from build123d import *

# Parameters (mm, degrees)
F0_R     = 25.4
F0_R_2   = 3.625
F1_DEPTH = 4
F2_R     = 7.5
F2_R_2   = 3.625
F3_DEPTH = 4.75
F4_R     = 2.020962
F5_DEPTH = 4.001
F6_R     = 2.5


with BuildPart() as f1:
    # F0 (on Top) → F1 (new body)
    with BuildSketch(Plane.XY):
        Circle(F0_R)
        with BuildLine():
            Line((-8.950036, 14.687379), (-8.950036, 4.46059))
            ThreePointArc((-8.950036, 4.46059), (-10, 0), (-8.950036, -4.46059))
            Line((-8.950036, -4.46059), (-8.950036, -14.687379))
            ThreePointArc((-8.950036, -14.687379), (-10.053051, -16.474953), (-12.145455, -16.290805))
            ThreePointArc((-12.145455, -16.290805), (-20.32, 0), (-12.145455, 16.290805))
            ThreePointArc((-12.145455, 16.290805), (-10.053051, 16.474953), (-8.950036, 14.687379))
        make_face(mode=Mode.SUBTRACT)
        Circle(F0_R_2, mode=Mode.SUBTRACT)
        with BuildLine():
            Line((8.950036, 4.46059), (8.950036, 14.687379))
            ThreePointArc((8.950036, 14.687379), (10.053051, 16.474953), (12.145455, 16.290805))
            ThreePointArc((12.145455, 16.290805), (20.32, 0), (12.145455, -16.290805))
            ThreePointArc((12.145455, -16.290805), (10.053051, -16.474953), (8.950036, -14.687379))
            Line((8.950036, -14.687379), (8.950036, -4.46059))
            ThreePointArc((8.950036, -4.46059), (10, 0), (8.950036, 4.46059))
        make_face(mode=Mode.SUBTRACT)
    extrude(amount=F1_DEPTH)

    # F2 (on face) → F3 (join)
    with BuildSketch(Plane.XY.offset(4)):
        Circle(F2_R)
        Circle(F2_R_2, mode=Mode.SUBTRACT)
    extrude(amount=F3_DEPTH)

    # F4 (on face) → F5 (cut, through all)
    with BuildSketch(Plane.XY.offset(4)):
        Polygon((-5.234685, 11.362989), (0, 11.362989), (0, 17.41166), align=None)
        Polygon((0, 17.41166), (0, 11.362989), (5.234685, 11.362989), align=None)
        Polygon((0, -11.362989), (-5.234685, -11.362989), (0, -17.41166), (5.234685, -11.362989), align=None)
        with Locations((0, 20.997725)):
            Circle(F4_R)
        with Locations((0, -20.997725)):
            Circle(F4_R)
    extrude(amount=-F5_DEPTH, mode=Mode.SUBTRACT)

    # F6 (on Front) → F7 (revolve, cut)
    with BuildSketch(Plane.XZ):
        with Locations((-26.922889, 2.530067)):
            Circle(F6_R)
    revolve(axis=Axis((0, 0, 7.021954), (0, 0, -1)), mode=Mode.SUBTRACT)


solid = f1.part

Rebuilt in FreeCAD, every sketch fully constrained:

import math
import FreeCAD as App
import Part
import Sketcher
Q = App.Units.Quantity


def add_polygon(sketch, points):
    """Adds a closed chain of lines whose ends are joined by coincident constraints."""
    first, n = sketch.GeometryCount, len(points)
    for a, b in zip(points, points[1:] + points[:1]):
        sketch.addGeometry(Part.LineSegment(App.Vector(*a, 0), App.Vector(*b, 0)), False)
    for i in range(n):
        sketch.addConstraint(Sketcher.Constraint("Coincident", first + i, 2, first + (i + 1) % n, 1))

doc = App.newDocument("Part")
body = doc.addObject("PartDesign::Body", "Body")

# Sketch on XY plane
sketch1 = body.newObject("Sketcher::SketchObject", "Sketch")
sketch1.AttachmentSupport = (doc.getObject("XY_Plane"), [""])
sketch1.MapMode = "FlatFace"
sketch1.addGeometry(Part.Circle(App.Vector(0, 0, 0), App.Vector(0, 0, 1), 25.4), False)
sketch1.addGeometry(Part.Circle(App.Vector(0, 0, 0), App.Vector(0, 0, 1), 3.625), False)
sketch1.addGeometry(Part.ArcOfCircle(Part.Circle(App.Vector(-10.950036, 14.68738, 0), App.Vector(0, 0, 1), 2), math.radians(-0.000028), math.radians(126.706042)), False)
sketch1.addGeometry(Part.LineSegment(App.Vector(-8.950036, 14.687379, 0), App.Vector(-8.950036, 4.46059, 0)), False)
sketch1.addGeometry(Part.ArcOfCircle(Part.Circle(App.Vector(0.000004, 0, 0), App.Vector(0, 0, 1), 10.000004), math.radians(153.508897), math.radians(206.491103)), False)
sketch1.addGeometry(Part.LineSegment(App.Vector(-8.950036, -4.46059, 0), App.Vector(-8.950036, -14.687379, 0)), False)
sketch1.addGeometry(Part.ArcOfCircle(Part.Circle(App.Vector(-10.950036, -14.68738, 0), App.Vector(0, 0, 1), 2), math.radians(-126.706042), math.radians(0.000028)), False)
sketch1.addGeometry(Part.ArcOfCircle(Part.Circle(App.Vector(0, 0, 0), App.Vector(0, 0, 1), 20.32), math.radians(126.706021), math.radians(233.293979)), False)
sketch1.addGeometry(Part.ArcOfCircle(Part.Circle(App.Vector(-0.000004, 0, 0), App.Vector(0, 0, 1), 10.000004), math.radians(-26.491103), math.radians(26.491103)), False)
sketch1.addGeometry(Part.LineSegment(App.Vector(8.950036, 4.46059, 0), App.Vector(8.950036, 14.687379, 0)), False)
sketch1.addGeometry(Part.ArcOfCircle(Part.Circle(App.Vector(10.950036, 14.68738, 0), App.Vector(0, 0, 1), 2), math.radians(53.293958), math.radians(180.000028)), False)
sketch1.addGeometry(Part.ArcOfCircle(Part.Circle(App.Vector(0, 0, 0), App.Vector(0, 0, 1), 20.32), math.radians(-53.293979), math.radians(53.293979)), False)
sketch1.addGeometry(Part.ArcOfCircle(Part.Circle(App.Vector(10.950036, -14.68738, 0), App.Vector(0, 0, 1), 2), math.radians(179.999972), math.radians(306.706042)), False)
sketch1.addGeometry(Part.LineSegment(App.Vector(8.950036, -14.687379, 0), App.Vector(8.950036, -4.46059, 0)), False)
sketch1.addConstraint(Sketcher.Constraint("Tangent", 2, 1, 3, 1))
sketch1.addConstraint(Sketcher.Constraint("Coincident", 3, 2, 4, 1))
sketch1.addConstraint(Sketcher.Constraint("Coincident", 4, 2, 5, 1))
sketch1.addConstraint(Sketcher.Constraint("Tangent", 5, 2, 6, 2))
sketch1.addConstraint(Sketcher.Constraint("Tangent", 6, 1, 7, 2))
sketch1.addConstraint(Sketcher.Constraint("Tangent", 7, 1, 2, 2))
sketch1.addConstraint(Sketcher.Constraint("Coincident", 8, 2, 9, 1))
sketch1.addConstraint(Sketcher.Constraint("Tangent", 9, 2, 10, 2))
sketch1.addConstraint(Sketcher.Constraint("Tangent", 10, 1, 11, 2))
sketch1.addConstraint(Sketcher.Constraint("Tangent", 11, 1, 12, 2))
sketch1.addConstraint(Sketcher.Constraint("Tangent", 12, 1, 13, 1))
sketch1.addConstraint(Sketcher.Constraint("Coincident", 13, 2, 8, 1))
sketch1.addConstraint(Sketcher.Constraint("Vertical", 3))
sketch1.addConstraint(Sketcher.Constraint("Vertical", 5))
sketch1.addConstraint(Sketcher.Constraint("Vertical", 9))
sketch1.addConstraint(Sketcher.Constraint("Vertical", 13))
sketch1.addConstraint(Sketcher.Constraint("Coincident", 0, 3, -1, 1))
sketch1.addConstraint(Sketcher.Constraint("Coincident", 1, 3, -1, 1))
sketch1.addConstraint(Sketcher.Constraint("Coincident", 4, 3, -1, 1))
sketch1.addConstraint(Sketcher.Constraint("Coincident", 7, 3, -1, 1))
sketch1.addConstraint(Sketcher.Constraint("Coincident", 8, 3, -1, 1))
sketch1.addConstraint(Sketcher.Constraint("Coincident", 11, 3, -1, 1))
sketch1.addConstraint(Sketcher.Constraint("Equal", 2, 6))
sketch1.addConstraint(Sketcher.Constraint("Equal", 4, 8))
sketch1.addConstraint(Sketcher.Constraint("Equal", 6, 10))
sketch1.addConstraint(Sketcher.Constraint("Equal", 7, 11))
sketch1.addConstraint(Sketcher.Constraint("Equal", 10, 12))
sketch1.addConstraint(Sketcher.Constraint("Horizontal", 2, 3, 10, 3))
sketch1.addConstraint(Sketcher.Constraint("Horizontal", 6, 3, 12, 3))
sketch1.addConstraint(Sketcher.Constraint("Vertical", 2, 3, 6, 3))
sketch1.addConstraint(Sketcher.Constraint("Radius", 2, Q("2 mm")))
sketch1.addConstraint(Sketcher.Constraint("Diameter", 0, Q("50.8 mm")))
sketch1.addConstraint(Sketcher.Constraint("Diameter", 1, Q("7.25 mm")))
sketch1.addConstraint(Sketcher.Constraint("Radius", 7, Q("20.32 mm")))
sketch1.addConstraint(Sketcher.Constraint("Radius", 4, Q("10.000004 mm")))
sketch1.addConstraint(Sketcher.Constraint("DistanceY", 3, 2, 3, 1, Q("10.226789 mm")))
pad1 = body.newObject("PartDesign::Pad", "Pad")
pad1.Profile = sketch1
pad1.Length = 4

# Sketch on XY plane
sketch2 = body.newObject("Sketcher::SketchObject", "Sketch001")
sketch2.AttachmentSupport = (doc.getObject("XY_Plane"), [""])
sketch2.MapMode = "FlatFace"
sketch2.AttachmentOffset = App.Placement(App.Vector(0, 0, 4), App.Rotation())
sketch2.addGeometry(Part.Circle(App.Vector(0, 0, 0), App.Vector(0, 0, 1), 7.5), False)
sketch2.addGeometry(Part.Circle(App.Vector(0, 0, 0), App.Vector(0, 0, 1), 3.625), False)
sketch2.addConstraint(Sketcher.Constraint("Coincident", 0, 3, -1, 1))
sketch2.addConstraint(Sketcher.Constraint("Coincident", 1, 3, -1, 1))
sketch2.addConstraint(Sketcher.Constraint("Diameter", 0, Q("15 mm")))
sketch2.addConstraint(Sketcher.Constraint("Diameter", 1, Q("7.25 mm")))
pad2 = body.newObject("PartDesign::Pad", "Pad001")
pad2.Profile = sketch2
pad2.Length = 4.75

# Sketch on XY plane
sketch3 = body.newObject("Sketcher::SketchObject", "Sketch002")
sketch3.AttachmentSupport = (doc.getObject("XY_Plane"), [""])
sketch3.MapMode = "FlatFace"
sketch3.AttachmentOffset = App.Placement(App.Vector(0, 0, 4), App.Rotation())
add_polygon(sketch3, [(-5.234685, 11.362989), (5.234685, 11.362989), (0, 17.41166)])  # lines 0-2
add_polygon(sketch3, [(-5.234685, -11.362989), (0, -17.41166), (5.234685, -11.362989)])  # lines 3-5
sketch3.addGeometry(Part.Circle(App.Vector(0, 20.997725, 0), App.Vector(0, 0, 1), 2.020962), False)  # 6
sketch3.addGeometry(Part.Circle(App.Vector(0, -20.997725, 0), App.Vector(0, 0, 1), 2.020962), False)  # 7
sketch3.addConstraint(Sketcher.Constraint("Horizontal", 0))
sketch3.addConstraint(Sketcher.Constraint("Horizontal", 5))
sketch3.addConstraint(Sketcher.Constraint("Equal", 6, 7))
sketch3.addConstraint(Sketcher.Constraint("Symmetric", 6, 3, 7, 3, -1, 1))
sketch3.addConstraint(Sketcher.Constraint("Symmetric", 1, 2, 3, 2, -1, 1))
sketch3.addConstraint(Sketcher.Constraint("Symmetric", 2, 2, 4, 2, -1, 1))
sketch3.addConstraint(Sketcher.Constraint("PointOnObject", 6, 3, -2))
sketch3.addConstraint(Sketcher.Constraint("PointOnObject", 1, 2, -2))
sketch3.addConstraint(Sketcher.Constraint("Parallel", 1, 3))
sketch3.addConstraint(Sketcher.Constraint("Vertical", 0, 2, 4, 2))
sketch3.addConstraint(Sketcher.Constraint("Diameter", 6, Q("4.041924 mm")))
sketch3.addConstraint(Sketcher.Constraint("DistanceX", 0, 1, 0, 2, Q("10.46937 mm")))
sketch3.addConstraint(Sketcher.Constraint("Distance", 1, Q("7.999272 mm")))
sketch3.addConstraint(Sketcher.Constraint("DistanceY", -1, 1, 0, 2, Q("11.362989 mm")))
sketch3.addConstraint(Sketcher.Constraint("DistanceY", 7, 3, 6, 3, Q("41.99545 mm")))
pocket1 = body.newObject("PartDesign::Pocket", "Pocket")
pocket1.Profile = sketch3
pocket1.Type = "ThroughAll"

# Sketch on XZ plane
sketch4 = body.newObject("Sketcher::SketchObject", "Sketch003")
sketch4.AttachmentSupport = (doc.getObject("XZ_Plane"), [""])
sketch4.MapMode = "FlatFace"
sketch4.addGeometry(Part.Circle(App.Vector(-26.922889, 2.530067, 0), App.Vector(0, 0, 1), 2.5), False)
sketch4.addConstraint(Sketcher.Constraint("Diameter", 0, Q("5 mm")))
sketch4.addConstraint(Sketcher.Constraint("DistanceX", 0, 3, -1, 1, Q("26.922889 mm")))
sketch4.addConstraint(Sketcher.Constraint("DistanceY", -1, 1, 0, 3, Q("2.530067 mm")))
groove = body.newObject("PartDesign::Groove", "Groove")
groove.Profile = sketch4
groove.ReferenceAxis = (sketch4, ["V_Axis"])
groove.Angle = 360

doc.recompute()
